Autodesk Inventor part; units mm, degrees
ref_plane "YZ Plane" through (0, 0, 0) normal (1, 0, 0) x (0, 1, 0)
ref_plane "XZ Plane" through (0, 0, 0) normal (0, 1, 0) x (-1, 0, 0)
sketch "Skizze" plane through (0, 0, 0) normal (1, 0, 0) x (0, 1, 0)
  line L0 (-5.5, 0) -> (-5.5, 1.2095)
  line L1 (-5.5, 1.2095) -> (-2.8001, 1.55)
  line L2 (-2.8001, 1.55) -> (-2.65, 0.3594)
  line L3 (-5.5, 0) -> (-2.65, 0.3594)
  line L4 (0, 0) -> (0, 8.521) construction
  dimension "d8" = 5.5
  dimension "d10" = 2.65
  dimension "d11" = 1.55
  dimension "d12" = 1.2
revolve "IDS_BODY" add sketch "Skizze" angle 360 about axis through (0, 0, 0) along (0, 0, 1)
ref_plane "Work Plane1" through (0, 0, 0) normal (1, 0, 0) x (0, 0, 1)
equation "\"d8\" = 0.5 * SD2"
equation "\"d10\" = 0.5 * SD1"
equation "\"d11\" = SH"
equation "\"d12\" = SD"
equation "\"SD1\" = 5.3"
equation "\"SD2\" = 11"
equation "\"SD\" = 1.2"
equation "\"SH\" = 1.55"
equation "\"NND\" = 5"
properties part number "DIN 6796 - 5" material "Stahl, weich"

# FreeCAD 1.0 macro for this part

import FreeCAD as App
import Part
import Sketcher
from FreeCAD import Vector
Q = App.Units.Quantity


def add_polygon(sketch, points):
    """Adds a closed chain of lines whose ends are joined by coincident constraints."""
    first, n = sketch.GeometryCount, len(points)
    for a, b in zip(points, points[1:] + points[:1]):
        sketch.addGeometry(Part.LineSegment(App.Vector(*a, 0), App.Vector(*b, 0)), False)
    for i in range(n):
        sketch.addConstraint(Sketcher.Constraint("Coincident", first + i, 2, first + (i + 1) % n, 1))

doc = App.newDocument("Part")
body = doc.addObject("PartDesign::Body", "Body")

# Sketch on YZ plane
sketch1 = body.newObject("Sketcher::SketchObject", "Sketch")
sketch1.AttachmentSupport = (doc.getObject("YZ_Plane"), [""])
sketch1.MapMode = "FlatFace"
add_polygon(sketch1, [(-5.5, 1.2), (-5.5, 0), (-2.6, 0.4), (-2.8, 1.6)])  # lines 0-3
sketch1.addConstraint(Sketcher.Constraint("Vertical", 0))
sketch1.addConstraint(Sketcher.Constraint("PointOnObject", 0, 2, -1))
sketch1.addConstraint(Sketcher.Constraint("Perpendicular", 1, 2))
sketch1.addConstraint(Sketcher.Constraint("Perpendicular", 2, 3))
sketch1.addConstraint(Sketcher.Constraint("Distance", 2, Q("1.2 mm")))
sketch1.addConstraint(Sketcher.Constraint("DistanceX", 0, 2, -1, 1, Q("5.5 mm")))
sketch1.addConstraint(Sketcher.Constraint("DistanceX", 1, 2, -1, 1, Q("2.65 mm")))
sketch1.addConstraint(Sketcher.Constraint("DistanceY", -1, 1, 2, 2, Q("1.55 mm")))
revolution = body.newObject("PartDesign::Revolution", "Revolution")
revolution.Profile = sketch1
revolution.ReferenceAxis = (sketch1, ["V_Axis"])
revolution.Angle = 360

doc.recompute()
